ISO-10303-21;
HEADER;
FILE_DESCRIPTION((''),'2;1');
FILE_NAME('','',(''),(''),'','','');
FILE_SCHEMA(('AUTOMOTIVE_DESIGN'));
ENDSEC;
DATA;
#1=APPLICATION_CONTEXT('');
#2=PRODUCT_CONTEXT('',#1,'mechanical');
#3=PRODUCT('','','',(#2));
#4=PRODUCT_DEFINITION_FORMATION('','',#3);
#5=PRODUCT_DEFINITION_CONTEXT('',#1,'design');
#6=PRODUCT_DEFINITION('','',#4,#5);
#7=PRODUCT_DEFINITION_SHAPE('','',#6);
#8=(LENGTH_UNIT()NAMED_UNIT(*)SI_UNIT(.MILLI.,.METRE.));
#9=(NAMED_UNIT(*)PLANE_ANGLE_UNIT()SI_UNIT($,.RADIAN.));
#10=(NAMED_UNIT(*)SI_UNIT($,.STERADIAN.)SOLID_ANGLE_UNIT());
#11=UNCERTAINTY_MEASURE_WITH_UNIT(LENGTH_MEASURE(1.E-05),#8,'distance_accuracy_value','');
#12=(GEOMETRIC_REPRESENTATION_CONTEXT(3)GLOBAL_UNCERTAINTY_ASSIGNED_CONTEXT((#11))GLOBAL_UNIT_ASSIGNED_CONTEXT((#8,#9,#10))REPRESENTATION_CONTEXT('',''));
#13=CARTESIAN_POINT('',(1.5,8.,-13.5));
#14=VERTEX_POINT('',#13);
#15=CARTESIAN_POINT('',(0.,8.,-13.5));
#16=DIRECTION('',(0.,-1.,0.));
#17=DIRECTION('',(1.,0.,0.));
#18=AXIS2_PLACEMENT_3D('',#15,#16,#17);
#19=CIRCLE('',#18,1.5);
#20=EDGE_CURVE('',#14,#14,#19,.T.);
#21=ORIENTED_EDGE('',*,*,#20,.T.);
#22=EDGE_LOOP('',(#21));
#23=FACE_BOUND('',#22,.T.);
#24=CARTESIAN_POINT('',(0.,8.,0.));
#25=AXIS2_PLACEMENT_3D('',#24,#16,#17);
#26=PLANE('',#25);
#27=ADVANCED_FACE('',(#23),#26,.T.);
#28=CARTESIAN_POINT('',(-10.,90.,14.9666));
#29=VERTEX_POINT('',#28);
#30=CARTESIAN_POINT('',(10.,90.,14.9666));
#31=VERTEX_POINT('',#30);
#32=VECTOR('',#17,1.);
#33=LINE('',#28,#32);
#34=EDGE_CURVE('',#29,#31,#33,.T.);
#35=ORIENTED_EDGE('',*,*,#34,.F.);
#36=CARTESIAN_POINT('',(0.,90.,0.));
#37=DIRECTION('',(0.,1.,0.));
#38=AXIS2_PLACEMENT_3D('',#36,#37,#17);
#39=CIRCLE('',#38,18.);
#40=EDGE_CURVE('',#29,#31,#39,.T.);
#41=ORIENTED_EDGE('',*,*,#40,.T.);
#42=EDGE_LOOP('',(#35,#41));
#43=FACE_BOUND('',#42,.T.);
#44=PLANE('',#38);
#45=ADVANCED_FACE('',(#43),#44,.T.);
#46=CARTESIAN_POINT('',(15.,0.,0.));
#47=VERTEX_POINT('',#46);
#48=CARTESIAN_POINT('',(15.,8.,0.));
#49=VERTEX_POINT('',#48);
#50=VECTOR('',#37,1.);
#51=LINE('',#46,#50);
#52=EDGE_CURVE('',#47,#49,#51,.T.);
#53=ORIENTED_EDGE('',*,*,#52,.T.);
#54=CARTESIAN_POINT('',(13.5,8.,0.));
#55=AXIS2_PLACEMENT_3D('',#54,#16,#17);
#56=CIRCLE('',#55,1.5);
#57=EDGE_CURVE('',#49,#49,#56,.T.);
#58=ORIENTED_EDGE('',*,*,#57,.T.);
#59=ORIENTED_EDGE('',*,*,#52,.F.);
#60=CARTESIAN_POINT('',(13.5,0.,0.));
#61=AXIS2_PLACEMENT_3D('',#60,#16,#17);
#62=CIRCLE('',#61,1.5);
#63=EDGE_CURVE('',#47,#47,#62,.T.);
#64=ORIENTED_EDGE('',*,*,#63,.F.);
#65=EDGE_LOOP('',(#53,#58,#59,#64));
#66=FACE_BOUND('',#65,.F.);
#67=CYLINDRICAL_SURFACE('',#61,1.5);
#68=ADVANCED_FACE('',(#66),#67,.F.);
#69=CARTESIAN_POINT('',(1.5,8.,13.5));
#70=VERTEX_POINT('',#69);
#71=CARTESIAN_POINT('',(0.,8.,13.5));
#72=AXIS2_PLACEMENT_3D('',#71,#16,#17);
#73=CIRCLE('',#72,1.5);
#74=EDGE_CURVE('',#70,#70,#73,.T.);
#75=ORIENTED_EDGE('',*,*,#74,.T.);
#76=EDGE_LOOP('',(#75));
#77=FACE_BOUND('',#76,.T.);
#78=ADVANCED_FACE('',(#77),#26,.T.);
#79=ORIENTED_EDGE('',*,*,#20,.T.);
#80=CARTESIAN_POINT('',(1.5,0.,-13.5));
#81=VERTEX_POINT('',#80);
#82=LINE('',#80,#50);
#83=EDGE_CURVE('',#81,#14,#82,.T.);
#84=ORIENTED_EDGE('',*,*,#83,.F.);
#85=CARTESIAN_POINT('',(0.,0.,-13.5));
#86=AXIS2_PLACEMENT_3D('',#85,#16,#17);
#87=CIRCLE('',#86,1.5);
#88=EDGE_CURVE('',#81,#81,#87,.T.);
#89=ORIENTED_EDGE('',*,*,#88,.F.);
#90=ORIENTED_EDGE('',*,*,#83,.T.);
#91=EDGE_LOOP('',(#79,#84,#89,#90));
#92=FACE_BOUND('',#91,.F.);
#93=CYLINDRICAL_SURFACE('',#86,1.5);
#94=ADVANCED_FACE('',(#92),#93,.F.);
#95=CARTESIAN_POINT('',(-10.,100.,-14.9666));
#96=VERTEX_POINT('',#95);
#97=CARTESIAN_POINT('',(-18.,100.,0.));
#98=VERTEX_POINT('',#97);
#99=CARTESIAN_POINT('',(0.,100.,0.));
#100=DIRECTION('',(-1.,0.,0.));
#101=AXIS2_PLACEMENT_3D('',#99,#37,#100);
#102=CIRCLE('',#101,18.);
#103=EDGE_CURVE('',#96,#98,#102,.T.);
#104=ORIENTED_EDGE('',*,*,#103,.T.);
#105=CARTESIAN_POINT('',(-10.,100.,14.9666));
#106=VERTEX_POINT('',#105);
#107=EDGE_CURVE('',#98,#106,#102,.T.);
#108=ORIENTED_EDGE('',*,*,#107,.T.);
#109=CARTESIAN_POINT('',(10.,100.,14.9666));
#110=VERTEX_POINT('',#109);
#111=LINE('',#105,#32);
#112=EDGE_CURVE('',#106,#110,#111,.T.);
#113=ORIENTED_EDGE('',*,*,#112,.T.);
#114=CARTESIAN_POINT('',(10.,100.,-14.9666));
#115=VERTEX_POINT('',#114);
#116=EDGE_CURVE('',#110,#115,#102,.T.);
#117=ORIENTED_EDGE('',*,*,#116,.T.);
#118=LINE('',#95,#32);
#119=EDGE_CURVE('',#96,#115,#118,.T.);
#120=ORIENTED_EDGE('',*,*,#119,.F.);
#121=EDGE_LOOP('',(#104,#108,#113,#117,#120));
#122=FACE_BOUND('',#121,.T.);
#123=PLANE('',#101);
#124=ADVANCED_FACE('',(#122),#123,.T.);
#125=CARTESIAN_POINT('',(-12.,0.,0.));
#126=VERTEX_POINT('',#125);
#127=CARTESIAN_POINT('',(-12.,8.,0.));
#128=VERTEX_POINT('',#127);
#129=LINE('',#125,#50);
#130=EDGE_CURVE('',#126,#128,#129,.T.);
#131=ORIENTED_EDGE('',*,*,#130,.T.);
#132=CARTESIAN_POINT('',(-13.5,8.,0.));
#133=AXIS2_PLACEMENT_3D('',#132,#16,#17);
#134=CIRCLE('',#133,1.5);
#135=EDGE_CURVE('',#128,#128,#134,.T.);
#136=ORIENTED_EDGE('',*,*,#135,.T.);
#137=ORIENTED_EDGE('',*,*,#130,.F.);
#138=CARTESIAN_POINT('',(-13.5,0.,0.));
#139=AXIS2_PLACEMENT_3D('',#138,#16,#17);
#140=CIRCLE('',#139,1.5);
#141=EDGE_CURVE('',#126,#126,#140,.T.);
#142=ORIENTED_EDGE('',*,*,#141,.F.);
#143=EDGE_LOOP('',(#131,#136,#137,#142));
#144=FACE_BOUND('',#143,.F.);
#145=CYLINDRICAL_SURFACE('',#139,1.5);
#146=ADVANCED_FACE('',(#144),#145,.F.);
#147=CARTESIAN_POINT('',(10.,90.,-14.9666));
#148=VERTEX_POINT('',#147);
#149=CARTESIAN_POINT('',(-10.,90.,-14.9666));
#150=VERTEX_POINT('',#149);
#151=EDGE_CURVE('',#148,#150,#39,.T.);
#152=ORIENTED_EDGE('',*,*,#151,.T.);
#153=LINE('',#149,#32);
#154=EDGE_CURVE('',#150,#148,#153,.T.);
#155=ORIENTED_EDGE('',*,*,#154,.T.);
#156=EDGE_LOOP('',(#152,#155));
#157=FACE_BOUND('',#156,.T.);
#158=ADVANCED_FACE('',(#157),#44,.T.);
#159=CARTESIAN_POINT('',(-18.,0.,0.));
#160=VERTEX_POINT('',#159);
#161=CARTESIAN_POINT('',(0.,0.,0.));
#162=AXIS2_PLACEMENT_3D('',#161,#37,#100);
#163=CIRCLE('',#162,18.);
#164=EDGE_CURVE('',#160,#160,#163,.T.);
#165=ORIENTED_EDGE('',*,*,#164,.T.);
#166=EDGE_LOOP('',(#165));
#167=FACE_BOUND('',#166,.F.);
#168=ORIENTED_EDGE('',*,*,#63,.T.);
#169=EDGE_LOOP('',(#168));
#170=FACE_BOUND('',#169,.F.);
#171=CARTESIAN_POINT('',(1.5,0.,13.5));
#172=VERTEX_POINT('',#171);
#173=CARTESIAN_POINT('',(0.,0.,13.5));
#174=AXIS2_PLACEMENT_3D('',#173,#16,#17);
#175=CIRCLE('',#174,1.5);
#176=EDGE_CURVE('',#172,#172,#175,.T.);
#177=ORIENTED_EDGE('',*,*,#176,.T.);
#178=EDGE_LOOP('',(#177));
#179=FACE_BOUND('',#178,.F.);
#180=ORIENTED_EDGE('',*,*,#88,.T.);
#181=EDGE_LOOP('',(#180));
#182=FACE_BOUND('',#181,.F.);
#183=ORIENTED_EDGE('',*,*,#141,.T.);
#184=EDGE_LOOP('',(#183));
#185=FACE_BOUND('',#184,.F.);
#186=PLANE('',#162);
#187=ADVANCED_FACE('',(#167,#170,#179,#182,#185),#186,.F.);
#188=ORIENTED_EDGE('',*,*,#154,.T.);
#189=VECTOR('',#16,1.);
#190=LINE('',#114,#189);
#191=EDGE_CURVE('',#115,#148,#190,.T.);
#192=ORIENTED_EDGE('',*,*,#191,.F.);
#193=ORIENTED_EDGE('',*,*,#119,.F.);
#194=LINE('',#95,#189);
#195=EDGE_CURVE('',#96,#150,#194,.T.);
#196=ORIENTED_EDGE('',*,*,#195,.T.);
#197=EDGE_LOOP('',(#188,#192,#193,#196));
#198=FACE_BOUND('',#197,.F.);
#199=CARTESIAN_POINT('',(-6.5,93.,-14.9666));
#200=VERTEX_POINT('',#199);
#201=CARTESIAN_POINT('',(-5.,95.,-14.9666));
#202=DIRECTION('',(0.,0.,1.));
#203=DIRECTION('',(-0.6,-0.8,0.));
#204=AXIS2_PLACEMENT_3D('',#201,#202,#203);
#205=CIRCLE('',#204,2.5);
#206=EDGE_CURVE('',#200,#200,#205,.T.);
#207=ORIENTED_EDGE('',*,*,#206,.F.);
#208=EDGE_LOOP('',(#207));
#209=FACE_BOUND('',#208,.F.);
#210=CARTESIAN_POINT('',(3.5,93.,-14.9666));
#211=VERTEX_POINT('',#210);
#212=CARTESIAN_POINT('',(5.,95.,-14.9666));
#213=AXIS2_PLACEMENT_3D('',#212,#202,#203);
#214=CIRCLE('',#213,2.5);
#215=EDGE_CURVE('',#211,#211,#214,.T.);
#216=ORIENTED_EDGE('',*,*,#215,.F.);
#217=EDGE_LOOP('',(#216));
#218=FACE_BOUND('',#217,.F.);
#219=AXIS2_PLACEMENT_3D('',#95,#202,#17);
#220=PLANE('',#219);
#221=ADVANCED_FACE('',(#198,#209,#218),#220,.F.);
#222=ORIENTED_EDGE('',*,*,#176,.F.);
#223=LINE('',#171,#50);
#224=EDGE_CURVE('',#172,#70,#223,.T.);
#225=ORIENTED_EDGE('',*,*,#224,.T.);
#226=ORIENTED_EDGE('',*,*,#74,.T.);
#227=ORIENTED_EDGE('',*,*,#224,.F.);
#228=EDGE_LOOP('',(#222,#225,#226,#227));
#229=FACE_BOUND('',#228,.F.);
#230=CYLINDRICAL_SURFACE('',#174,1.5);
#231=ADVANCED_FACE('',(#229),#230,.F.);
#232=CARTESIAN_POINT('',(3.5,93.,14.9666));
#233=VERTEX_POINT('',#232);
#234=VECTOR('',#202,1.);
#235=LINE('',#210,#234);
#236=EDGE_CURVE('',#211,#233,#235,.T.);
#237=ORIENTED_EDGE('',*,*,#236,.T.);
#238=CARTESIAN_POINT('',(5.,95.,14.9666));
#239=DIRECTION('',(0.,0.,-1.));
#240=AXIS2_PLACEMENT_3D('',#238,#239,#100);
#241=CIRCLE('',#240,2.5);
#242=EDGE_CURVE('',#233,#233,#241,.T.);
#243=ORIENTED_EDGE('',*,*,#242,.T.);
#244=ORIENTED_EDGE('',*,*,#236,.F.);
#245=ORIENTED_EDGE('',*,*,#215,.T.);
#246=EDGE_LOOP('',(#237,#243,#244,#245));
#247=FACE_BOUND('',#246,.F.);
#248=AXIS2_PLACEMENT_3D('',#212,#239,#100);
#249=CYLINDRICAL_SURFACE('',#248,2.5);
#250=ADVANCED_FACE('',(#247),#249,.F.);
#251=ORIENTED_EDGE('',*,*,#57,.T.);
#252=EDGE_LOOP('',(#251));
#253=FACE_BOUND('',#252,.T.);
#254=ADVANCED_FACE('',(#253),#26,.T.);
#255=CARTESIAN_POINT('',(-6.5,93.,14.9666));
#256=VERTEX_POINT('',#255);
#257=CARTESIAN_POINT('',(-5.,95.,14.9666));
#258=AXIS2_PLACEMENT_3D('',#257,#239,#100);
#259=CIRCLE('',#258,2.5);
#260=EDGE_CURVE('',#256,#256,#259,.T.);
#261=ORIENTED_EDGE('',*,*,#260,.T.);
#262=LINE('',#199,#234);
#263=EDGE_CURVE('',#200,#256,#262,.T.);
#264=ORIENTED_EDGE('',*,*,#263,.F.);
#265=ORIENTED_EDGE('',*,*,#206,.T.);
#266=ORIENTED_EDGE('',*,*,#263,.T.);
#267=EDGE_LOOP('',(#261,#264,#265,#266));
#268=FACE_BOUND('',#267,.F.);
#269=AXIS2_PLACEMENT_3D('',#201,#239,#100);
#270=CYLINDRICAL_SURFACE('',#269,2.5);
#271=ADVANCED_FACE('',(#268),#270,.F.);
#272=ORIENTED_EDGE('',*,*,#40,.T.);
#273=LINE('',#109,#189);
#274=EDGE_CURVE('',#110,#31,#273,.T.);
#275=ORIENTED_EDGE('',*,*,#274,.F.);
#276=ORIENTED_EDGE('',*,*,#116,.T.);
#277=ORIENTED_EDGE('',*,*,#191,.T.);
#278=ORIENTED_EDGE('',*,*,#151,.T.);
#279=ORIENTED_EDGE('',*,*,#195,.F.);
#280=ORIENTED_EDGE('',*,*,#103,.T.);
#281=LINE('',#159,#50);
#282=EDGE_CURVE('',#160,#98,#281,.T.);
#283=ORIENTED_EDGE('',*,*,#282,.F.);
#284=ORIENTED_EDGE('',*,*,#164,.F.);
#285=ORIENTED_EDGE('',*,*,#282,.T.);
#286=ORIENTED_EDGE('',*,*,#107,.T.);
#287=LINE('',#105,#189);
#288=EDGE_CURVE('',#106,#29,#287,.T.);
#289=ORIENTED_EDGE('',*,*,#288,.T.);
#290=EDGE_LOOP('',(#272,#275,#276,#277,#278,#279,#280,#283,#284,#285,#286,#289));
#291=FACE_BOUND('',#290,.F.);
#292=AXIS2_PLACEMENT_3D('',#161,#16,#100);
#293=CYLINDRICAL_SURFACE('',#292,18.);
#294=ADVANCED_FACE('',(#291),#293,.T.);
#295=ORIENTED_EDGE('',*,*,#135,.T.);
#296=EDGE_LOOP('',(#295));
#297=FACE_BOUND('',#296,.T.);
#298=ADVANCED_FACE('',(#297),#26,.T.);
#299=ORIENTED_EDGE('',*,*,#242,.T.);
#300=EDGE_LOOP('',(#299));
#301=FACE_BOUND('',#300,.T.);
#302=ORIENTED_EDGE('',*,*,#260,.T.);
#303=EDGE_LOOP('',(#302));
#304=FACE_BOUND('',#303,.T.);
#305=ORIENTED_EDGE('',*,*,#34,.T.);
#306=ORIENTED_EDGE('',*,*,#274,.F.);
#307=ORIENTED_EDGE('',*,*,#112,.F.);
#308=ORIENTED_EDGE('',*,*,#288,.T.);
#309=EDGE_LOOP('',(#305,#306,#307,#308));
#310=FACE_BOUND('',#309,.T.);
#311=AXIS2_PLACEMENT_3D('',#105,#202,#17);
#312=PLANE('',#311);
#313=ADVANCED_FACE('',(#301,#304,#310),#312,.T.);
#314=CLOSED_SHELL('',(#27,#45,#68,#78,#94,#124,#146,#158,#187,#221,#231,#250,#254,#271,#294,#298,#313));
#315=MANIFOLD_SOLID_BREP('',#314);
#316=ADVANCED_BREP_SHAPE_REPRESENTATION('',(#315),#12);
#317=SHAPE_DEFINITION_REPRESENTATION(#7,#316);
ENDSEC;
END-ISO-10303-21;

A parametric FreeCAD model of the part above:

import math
import FreeCAD as App
import Part
import Sketcher
Q = App.Units.Quantity

doc = App.newDocument("Part")
body = doc.addObject("PartDesign::Body", "Body")

sketch1 = body.newObject("Sketcher::SketchObject", "Sketch")
sketch1.AttachmentSupport = (doc.getObject("XZ_Plane"), [""])
sketch1.MapMode = "FlatFace"
sketch1.addGeometry(Part.Circle(App.Vector(0, 0, 0), App.Vector(0, 0, 1), 18), False)
sketch1.addConstraint([
    Sketcher.Constraint("Coincident", 0, 3, -1, 1),
    Sketcher.Constraint("Diameter", 0, Q("36 mm")),
])
pad1 = body.newObject("PartDesign::Pad", "Pad")
pad1.Profile = sketch1
pad1.Length = 100
pad1.Reversed = True

sketch2 = body.newObject("Sketcher::SketchObject", "Sketch001")
sketch2.AttachmentSupport = (doc.getObject("XZ_Plane"), [""])
sketch2.MapMode = "FlatFace"
sketch2.AttachmentOffset = App.Placement(App.Vector(0, 0, -100), App.Rotation())
sketch2.addGeometry([
    Part.LineSegment(App.Vector(-10, -15, 0), App.Vector(10, -15, 0)),
    Part.ArcOfCircle(Part.Circle(App.Vector(0, 0, 0), App.Vector(0, 0, 1), 18), math.radians(-124), math.radians(-56)),
    Part.ArcOfCircle(Part.Circle(App.Vector(0, 0, 0), App.Vector(0, 0, 1), 18), math.radians(56), math.radians(124)),
    Part.LineSegment(App.Vector(-10, 15, 0), App.Vector(10, 15, 0)),
], False)
sketch2.addConstraint([
    Sketcher.Constraint("Coincident", 0, 1, 1, 1),
    Sketcher.Constraint("Coincident", 1, 2, 0, 2),
    Sketcher.Constraint("Coincident", 2, 1, 3, 2),
    Sketcher.Constraint("Coincident", 3, 1, 2, 2),
    Sketcher.Constraint("Horizontal", 0),
    Sketcher.Constraint("Horizontal", 3),
    Sketcher.Constraint("Coincident", 1, 3, -1, 1),
    Sketcher.Constraint("Coincident", 2, 3, -1, 1),
    Sketcher.Constraint("Equal", 1, 2),
    Sketcher.Constraint("Vertical", 1, 2, 2, 1),
    Sketcher.Constraint("DistanceX", 0, 1, 0, 2, Q("20 mm")),
    Sketcher.Constraint("Radius", 1, Q("18 mm")),
])
pocket1 = body.newObject("PartDesign::Pocket", "Pocket")
pocket1.Profile = sketch2
pocket1.Length = 10
pocket1.Reversed = True

sketch3 = body.newObject("Sketcher::SketchObject", "Sketch002")
sketch3.AttachmentSupport = (doc.getObject("XY_Plane"), [""])
sketch3.MapMode = "FlatFace"
sketch3.AttachmentOffset = App.Placement(App.Vector(0, 0, -14.9666), App.Rotation())
sketch3.addGeometry([
    Part.Circle(App.Vector(5, 95, 0), App.Vector(0, 0, 1), 2.5),
    Part.Circle(App.Vector(-5, 95, 0), App.Vector(0, 0, 1), 2.5),
], False)
sketch3.addConstraint([
    Sketcher.Constraint("Equal", 0, 1),
    Sketcher.Constraint("Symmetric", 0, 3, 1, 3, -2),
    Sketcher.Constraint("Diameter", 0, Q("5 mm")),
    Sketcher.Constraint("DistanceX", -1, 1, 0, 3, Q("5 mm")),
    Sketcher.Constraint("DistanceY", -1, 1, 0, 3, Q("95 mm")),
])
pocket2 = body.newObject("PartDesign::Pocket", "Pocket001")
pocket2.Profile = sketch3
pocket2.Type = "ThroughAll"
pocket2.Reversed = True

sketch4 = body.newObject("Sketcher::SketchObject", "Sketch003")
sketch4.AttachmentSupport = (doc.getObject("XZ_Plane"), [""])
sketch4.MapMode = "FlatFace"
sketch4.addGeometry([
    Part.Circle(App.Vector(13.5, 0, 0), App.Vector(0, 0, 1), 1.5),
    Part.Circle(App.Vector(0, 13.5, 0), App.Vector(0, 0, 1), 1.5),
    Part.Circle(App.Vector(-13.5, 0, 0), App.Vector(0, 0, 1), 1.5),
    Part.Circle(App.Vector(0, -13.5, 0), App.Vector(0, 0, 1), 1.5),
], False)
sketch4.addConstraint([
    Sketcher.Constraint("Equal", 0, 1),
    Sketcher.Constraint("Equal", 1, 2),
    Sketcher.Constraint("Equal", 2, 3),
    Sketcher.Constraint("Symmetric", 0, 3, 2, 3, -1, 1),
    Sketcher.Constraint("Symmetric", 1, 3, 3, 3, -1, 1),
    Sketcher.Constraint("PointOnObject", 0, 3, -1),
    Sketcher.Constraint("PointOnObject", 1, 3, -2),
    Sketcher.Constraint("Diameter", 0, Q("3 mm")),
    Sketcher.Constraint("DistanceX", -1, 1, 0, 3, Q("13.5 mm")),
    Sketcher.Constraint("DistanceY", -1, 1, 1, 3, Q("13.5 mm")),
])
pocket3 = body.newObject("PartDesign::Pocket", "Pocket002")
pocket3.Profile = sketch4
pocket3.Length = 8

doc.recompute()
